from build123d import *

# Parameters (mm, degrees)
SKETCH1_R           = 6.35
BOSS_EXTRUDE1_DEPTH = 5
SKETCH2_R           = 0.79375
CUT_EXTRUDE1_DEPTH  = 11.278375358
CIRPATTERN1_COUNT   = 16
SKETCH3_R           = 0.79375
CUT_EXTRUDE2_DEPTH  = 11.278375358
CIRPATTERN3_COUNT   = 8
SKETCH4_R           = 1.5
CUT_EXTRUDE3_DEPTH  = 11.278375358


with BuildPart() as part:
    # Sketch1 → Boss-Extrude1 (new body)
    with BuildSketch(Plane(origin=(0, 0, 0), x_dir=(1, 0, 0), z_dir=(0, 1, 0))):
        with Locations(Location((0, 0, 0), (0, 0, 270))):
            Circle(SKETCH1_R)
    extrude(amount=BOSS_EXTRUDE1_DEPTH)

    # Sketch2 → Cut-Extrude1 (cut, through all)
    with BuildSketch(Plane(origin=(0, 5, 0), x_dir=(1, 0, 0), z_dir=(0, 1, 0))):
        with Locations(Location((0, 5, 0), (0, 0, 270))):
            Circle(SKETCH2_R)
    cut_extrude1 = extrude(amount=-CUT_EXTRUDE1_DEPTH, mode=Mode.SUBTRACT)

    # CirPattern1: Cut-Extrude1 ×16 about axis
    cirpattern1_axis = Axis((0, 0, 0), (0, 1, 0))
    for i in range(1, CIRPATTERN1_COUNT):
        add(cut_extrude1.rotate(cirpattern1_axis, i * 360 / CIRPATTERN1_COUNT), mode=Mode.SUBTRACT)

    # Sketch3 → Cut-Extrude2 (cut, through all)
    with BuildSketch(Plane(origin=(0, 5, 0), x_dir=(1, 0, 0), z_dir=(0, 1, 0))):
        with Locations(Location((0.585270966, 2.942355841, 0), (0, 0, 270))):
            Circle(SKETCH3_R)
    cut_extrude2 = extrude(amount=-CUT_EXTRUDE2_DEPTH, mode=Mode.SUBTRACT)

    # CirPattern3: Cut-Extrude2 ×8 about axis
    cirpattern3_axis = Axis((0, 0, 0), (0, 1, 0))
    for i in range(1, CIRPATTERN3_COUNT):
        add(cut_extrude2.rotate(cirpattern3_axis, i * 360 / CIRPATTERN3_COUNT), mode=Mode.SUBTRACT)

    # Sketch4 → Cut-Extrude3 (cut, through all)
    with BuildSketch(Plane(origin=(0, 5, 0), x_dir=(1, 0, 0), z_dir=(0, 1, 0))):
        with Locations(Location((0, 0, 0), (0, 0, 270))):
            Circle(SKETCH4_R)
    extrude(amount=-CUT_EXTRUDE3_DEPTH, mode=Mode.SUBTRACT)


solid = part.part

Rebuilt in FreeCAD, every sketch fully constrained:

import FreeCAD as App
import Part
import Sketcher

doc = App.newDocument("Part")
body = doc.addObject("PartDesign::Body", "Body")

sketch1 = body.newObject("Sketcher::SketchObject", "Sketch")
sketch1.AttachmentSupport = (doc.getObject("XZ_Plane"), [""])
sketch1.MapMode = "FlatFace"
sketch1.addGeometry(Part.Circle(App.Vector(0, 0, 0), App.Vector(0, 0, 1), 6), False)
sketch1.addConstraint([
    Sketcher.Constraint("Coincident", 0, 3, -1, 1),
    Sketcher.Constraint("Diameter", 0, 12.7),
])
pad1 = body.newObject("PartDesign::Pad", "Pad")
pad1.Profile = sketch1
pad1.Length = 5
pad1.Reversed = True

sketch2 = body.newObject("Sketcher::SketchObject", "Sketch001")
sketch2.AttachmentSupport = (doc.getObject("XZ_Plane"), [""])
sketch2.MapMode = "FlatFace"
sketch2.AttachmentOffset = App.Placement(App.Vector(0, 0, -5), App.Rotation())
sketch2.addGeometry(Part.Circle(App.Vector(0, -5, 0), App.Vector(0, 0, 1), 0.8), False)
sketch2.addConstraint([
    Sketcher.Constraint("PointOnObject", 0, 3, -2),
    Sketcher.Constraint("DistanceY", 0, 3, -1, 1, 5.0),
    Sketcher.Constraint("Diameter", 0, 1.5875),
])
pocket1 = body.newObject("PartDesign::Pocket", "Pocket")
pocket1.Profile = sketch2
pocket1.Type = "ThroughAll"
pocket1.Reversed = True
doc.recompute()

polarpattern = body.newObject("PartDesign::PolarPattern", "PolarPattern")
polarpattern.Originals = [pocket1]
polarpattern.Axis = (doc.getObject("Y_Axis"), [""])
polarpattern.Angle = 360
polarpattern.Occurrences = 16
body.Tip = polarpattern

sketch3 = body.newObject("Sketcher::SketchObject", "Sketch002")
sketch3.AttachmentSupport = (doc.getObject("XZ_Plane"), [""])
sketch3.MapMode = "FlatFace"
sketch3.AttachmentOffset = App.Placement(App.Vector(0, 0, -5), App.Rotation())
sketch3.addGeometry(Part.Circle(App.Vector(0.6, -2.9, 0), App.Vector(0, 0, 1), 0.8), False)
sketch3.addConstraint([
    Sketcher.Constraint("Diameter", 0, 1.5875),
    Sketcher.Constraint("DistanceX", -1, 1, 0, 3, 0.585271),
    Sketcher.Constraint("DistanceY", 0, 3, -1, 1, 2.942356),
])
pocket2 = body.newObject("PartDesign::Pocket", "Pocket001")
pocket2.Profile = sketch3
pocket2.Type = "ThroughAll"
pocket2.Reversed = True
doc.recompute()

polarpattern2 = body.newObject("PartDesign::PolarPattern", "PolarPattern001")
polarpattern2.Originals = [pocket2]
polarpattern2.Axis = (doc.getObject("Y_Axis"), [""])
polarpattern2.Angle = 360
polarpattern2.Occurrences = 8
body.Tip = polarpattern2

sketch4 = body.newObject("Sketcher::SketchObject", "Sketch003")
sketch4.AttachmentSupport = (doc.getObject("XZ_Plane"), [""])
sketch4.MapMode = "FlatFace"
sketch4.AttachmentOffset = App.Placement(App.Vector(0, 0, -5), App.Rotation())
sketch4.addGeometry(Part.Circle(App.Vector(0, 0, 0), App.Vector(0, 0, 1), 1.5), False)
sketch4.addConstraint([
    Sketcher.Constraint("Coincident", 0, 3, -1, 1),
    Sketcher.Constraint("Diameter", 0, 3.0),
])
pocket3 = body.newObject("PartDesign::Pocket", "Pocket002")
pocket3.Profile = sketch4
pocket3.Type = "ThroughAll"
pocket3.Reversed = True

doc.recompute()
